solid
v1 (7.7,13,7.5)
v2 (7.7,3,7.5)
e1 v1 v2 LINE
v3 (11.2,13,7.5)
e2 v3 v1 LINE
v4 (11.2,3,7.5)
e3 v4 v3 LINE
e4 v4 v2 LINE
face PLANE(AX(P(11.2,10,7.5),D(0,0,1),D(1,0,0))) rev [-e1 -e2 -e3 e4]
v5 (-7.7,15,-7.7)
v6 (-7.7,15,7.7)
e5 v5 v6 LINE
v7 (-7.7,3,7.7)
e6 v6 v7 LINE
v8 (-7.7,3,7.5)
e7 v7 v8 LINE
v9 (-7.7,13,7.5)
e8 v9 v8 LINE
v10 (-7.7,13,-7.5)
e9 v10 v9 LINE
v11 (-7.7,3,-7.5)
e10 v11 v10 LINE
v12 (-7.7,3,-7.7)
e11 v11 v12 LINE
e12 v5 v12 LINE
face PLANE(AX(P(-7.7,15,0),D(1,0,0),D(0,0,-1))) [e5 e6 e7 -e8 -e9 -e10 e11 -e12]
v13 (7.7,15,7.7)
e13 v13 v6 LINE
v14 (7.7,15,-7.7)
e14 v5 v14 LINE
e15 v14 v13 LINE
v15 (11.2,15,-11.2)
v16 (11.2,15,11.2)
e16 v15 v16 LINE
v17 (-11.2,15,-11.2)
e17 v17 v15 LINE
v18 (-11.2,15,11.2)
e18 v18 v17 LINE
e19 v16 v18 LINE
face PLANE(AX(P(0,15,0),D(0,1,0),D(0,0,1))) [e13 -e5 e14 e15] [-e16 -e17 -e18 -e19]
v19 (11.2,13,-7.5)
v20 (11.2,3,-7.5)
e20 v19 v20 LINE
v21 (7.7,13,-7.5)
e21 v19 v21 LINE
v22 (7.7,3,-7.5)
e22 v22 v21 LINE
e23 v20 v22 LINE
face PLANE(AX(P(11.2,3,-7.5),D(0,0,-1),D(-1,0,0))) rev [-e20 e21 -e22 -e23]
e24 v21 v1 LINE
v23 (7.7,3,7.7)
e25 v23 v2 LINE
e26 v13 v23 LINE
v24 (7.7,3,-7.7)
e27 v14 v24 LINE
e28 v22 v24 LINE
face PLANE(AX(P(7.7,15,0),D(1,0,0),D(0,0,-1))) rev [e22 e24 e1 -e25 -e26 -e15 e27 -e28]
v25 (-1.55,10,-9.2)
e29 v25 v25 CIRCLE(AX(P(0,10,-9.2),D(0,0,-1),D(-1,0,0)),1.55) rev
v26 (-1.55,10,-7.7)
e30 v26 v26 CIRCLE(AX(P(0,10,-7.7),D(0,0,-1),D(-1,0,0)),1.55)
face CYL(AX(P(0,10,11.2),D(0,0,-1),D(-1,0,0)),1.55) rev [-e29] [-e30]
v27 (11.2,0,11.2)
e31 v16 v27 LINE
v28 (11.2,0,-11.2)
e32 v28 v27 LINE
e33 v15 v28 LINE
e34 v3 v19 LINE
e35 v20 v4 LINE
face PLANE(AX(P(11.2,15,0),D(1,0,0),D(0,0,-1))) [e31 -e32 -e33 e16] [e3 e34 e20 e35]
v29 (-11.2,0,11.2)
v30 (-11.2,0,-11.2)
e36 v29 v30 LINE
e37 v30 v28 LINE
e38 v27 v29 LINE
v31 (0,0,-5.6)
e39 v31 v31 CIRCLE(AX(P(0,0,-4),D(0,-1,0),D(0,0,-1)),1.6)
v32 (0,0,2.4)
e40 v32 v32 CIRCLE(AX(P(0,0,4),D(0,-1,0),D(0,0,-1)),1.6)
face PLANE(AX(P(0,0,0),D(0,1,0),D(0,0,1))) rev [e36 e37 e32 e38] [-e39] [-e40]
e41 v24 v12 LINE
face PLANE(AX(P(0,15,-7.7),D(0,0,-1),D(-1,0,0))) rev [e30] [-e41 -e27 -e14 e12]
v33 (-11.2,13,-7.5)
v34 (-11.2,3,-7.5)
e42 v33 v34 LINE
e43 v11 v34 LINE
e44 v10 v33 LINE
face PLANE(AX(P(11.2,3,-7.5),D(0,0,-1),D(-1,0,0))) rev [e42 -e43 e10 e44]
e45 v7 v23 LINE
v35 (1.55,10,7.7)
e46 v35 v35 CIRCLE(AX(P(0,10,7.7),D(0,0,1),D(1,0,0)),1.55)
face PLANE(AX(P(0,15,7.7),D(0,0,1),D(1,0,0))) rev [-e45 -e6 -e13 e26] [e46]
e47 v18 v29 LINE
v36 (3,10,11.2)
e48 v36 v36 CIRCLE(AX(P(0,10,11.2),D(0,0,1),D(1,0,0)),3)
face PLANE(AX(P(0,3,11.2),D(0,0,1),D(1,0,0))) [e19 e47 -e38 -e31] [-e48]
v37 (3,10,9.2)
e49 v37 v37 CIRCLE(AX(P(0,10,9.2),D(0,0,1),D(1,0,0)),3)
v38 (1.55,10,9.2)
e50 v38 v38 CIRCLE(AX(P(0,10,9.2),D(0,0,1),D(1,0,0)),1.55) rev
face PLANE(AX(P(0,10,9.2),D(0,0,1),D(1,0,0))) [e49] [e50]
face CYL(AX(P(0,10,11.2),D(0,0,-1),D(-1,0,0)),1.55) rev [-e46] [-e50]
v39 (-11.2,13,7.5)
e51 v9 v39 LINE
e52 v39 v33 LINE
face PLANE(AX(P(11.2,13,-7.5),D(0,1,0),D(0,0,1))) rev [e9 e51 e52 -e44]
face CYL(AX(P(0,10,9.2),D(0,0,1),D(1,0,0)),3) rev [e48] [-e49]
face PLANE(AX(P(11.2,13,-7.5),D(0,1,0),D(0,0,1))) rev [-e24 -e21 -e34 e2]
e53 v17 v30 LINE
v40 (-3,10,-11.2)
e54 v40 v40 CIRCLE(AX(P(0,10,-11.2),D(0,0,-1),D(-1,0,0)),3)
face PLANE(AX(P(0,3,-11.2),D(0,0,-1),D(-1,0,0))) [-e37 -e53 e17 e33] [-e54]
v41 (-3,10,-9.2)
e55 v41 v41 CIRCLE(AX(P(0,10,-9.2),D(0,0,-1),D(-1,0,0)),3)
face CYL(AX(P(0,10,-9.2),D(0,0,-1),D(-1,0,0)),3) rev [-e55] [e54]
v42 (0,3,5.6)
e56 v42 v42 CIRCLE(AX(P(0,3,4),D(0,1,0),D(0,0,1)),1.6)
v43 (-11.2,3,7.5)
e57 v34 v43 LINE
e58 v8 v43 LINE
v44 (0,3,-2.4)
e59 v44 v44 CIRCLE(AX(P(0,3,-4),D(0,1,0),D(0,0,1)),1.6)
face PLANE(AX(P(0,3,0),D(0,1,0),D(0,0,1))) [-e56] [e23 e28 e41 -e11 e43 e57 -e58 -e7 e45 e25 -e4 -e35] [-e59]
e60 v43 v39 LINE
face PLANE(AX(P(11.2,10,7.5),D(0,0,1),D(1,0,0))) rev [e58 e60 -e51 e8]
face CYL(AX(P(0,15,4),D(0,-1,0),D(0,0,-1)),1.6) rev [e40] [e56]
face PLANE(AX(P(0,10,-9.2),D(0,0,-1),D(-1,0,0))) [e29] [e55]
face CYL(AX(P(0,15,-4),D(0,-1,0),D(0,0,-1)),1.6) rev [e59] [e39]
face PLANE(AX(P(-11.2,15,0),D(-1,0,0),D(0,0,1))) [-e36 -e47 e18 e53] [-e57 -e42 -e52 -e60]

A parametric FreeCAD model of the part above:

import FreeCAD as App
import Part
import Sketcher

V = App.Vector

doc = App.newDocument("Part")
body = doc.addObject("PartDesign::Body", "Body")

sketch1 = body.newObject("Sketcher::SketchObject", "Sketch")
sketch1.AttachmentSupport = (doc.getObject("XZ_Plane"), [""])
sketch1.MapMode = "FlatFace"
sketch1.addGeometry(Part.LineSegment(V(-7.7, -11.2, 0), V(-7.7, 11.2, 0)), False)
sketch1.addGeometry(Part.LineSegment(V(-7.7, 11.2, 0), V(7.7, 11.2, 0)), False)
sketch1.addGeometry(Part.LineSegment(V(7.7, 11.2, 0), V(7.7, -11.2, 0)), False)
sketch1.addGeometry(Part.LineSegment(V(7.7, -11.2, 0), V(-7.7, -11.2, 0)), False)
sketch1.addConstraint(Sketcher.Constraint("Coincident", 0, 2, 1, 1))
sketch1.addConstraint(Sketcher.Constraint("Coincident", 1, 2, 2, 1))
sketch1.addConstraint(Sketcher.Constraint("Coincident", 2, 2, 3, 1))
sketch1.addConstraint(Sketcher.Constraint("Coincident", 3, 2, 0, 1))
sketch1.addConstraint(Sketcher.Constraint("Vertical", 0))
sketch1.addConstraint(Sketcher.Constraint("Horizontal", 1))
sketch1.addConstraint(Sketcher.Constraint("Vertical", 2))
sketch1.addConstraint(Sketcher.Constraint("Horizontal", 3))
sketch1.addConstraint(Sketcher.Constraint("Symmetric", 0, 2, 2, 2, -1, 1))
sketch1.addConstraint(Sketcher.Constraint("DistanceX", 1, 1, 1, 2, 15.4))
sketch1.addConstraint(Sketcher.Constraint("DistanceY", 0, 1, 0, 2, 22.4))
pad1 = body.newObject("PartDesign::Pad", "Pad")
pad1.Profile = sketch1
pad1.Length = 3
pad1.Reversed = True
body2 = doc.addObject("PartDesign::Body", "Body001")

sketch2 = body2.newObject("Sketcher::SketchObject", "Sketch001")
sketch2.AttachmentSupport = (doc.getObject("XZ_Plane001"), [""])
sketch2.MapMode = "FlatFace"
sketch2.addGeometry(Part.LineSegment(V(7.7, 11.2, 0), V(7.7, 7.7, 0)), False)
sketch2.addGeometry(Part.LineSegment(V(7.7, 7.7, 0), V(-7.7, 7.7, 0)), False)
sketch2.addGeometry(Part.LineSegment(V(-7.7, 7.7, 0), V(-7.7, 11.2, 0)), False)
sketch2.addGeometry(Part.LineSegment(V(-7.7, 11.2, 0), V(7.7, 11.2, 0)), False)
sketch2.addConstraint(Sketcher.Constraint("Coincident", 0, 2, 1, 1))
sketch2.addConstraint(Sketcher.Constraint("Coincident", 1, 2, 2, 1))
sketch2.addConstraint(Sketcher.Constraint("Coincident", 2, 2, 3, 1))
sketch2.addConstraint(Sketcher.Constraint("Coincident", 3, 2, 0, 1))
sketch2.addConstraint(Sketcher.Constraint("Vertical", 0))
sketch2.addConstraint(Sketcher.Constraint("Horizontal", 1))
sketch2.addConstraint(Sketcher.Constraint("Vertical", 2))
sketch2.addConstraint(Sketcher.Constraint("Horizontal", 3))
sketch2.addConstraint(Sketcher.Constraint("DistanceX", 1, 2, 1, 1, 15.4))
sketch2.addConstraint(Sketcher.Constraint("DistanceY", 0, 2, 0, 1, 3.5))
sketch2.addConstraint(Sketcher.Constraint("DistanceX", -1, 1, 0, 2, 7.7))
sketch2.addConstraint(Sketcher.Constraint("DistanceY", -1, 1, 0, 2, 7.7))
pad2 = body2.newObject("PartDesign::Pad", "Pad001")
pad2.Profile = sketch2
pad2.Length = 5
pad2.Reversed = True
body3 = doc.addObject("PartDesign::Body", "Body002")

sketch3 = body3.newObject("Sketcher::SketchObject", "Sketch002")
sketch3.AttachmentSupport = (doc.getObject("XZ_Plane002"), [""])
sketch3.MapMode = "FlatFace"
sketch3.addGeometry(Part.LineSegment(V(-7.7, -7.7, 0), V(7.7, -7.7, 0)), False)
sketch3.addGeometry(Part.LineSegment(V(7.7, -7.7, 0), V(7.7, -11.2, 0)), False)
sketch3.addGeometry(Part.LineSegment(V(7.7, -11.2, 0), V(-7.7, -11.2, 0)), False)
sketch3.addGeometry(Part.LineSegment(V(-7.7, -11.2, 0), V(-7.7, -7.7, 0)), False)
sketch3.addConstraint(Sketcher.Constraint("Coincident", 0, 2, 1, 1))
sketch3.addConstraint(Sketcher.Constraint("Coincident", 1, 2, 2, 1))
sketch3.addConstraint(Sketcher.Constraint("Coincident", 2, 2, 3, 1))
sketch3.addConstraint(Sketcher.Constraint("Coincident", 3, 2, 0, 1))
sketch3.addConstraint(Sketcher.Constraint("Horizontal", 0))
sketch3.addConstraint(Sketcher.Constraint("Vertical", 1))
sketch3.addConstraint(Sketcher.Constraint("Horizontal", 2))
sketch3.addConstraint(Sketcher.Constraint("Vertical", 3))
sketch3.addConstraint(Sketcher.Constraint("DistanceX", 0, 1, 0, 2, 15.4))
sketch3.addConstraint(Sketcher.Constraint("DistanceY", 1, 2, 1, 1, 3.5))
sketch3.addConstraint(Sketcher.Constraint("DistanceX", -1, 1, 0, 2, 7.7))
sketch3.addConstraint(Sketcher.Constraint("DistanceY", 0, 2, -1, 1, 7.7))
pad3 = body3.newObject("PartDesign::Pad", "Pad002")
pad3.Profile = sketch3
pad3.Length = 5
pad3.Reversed = True
doc.recompute()

boolean = body.newObject("PartDesign::Boolean", "Boolean")
boolean.Type = "Fuse"
boolean.addObjects([body2])
doc.recompute()

boolean2 = body.newObject("PartDesign::Boolean", "Boolean001")
boolean2.Type = "Fuse"
boolean2.addObjects([body3])

sketch4 = body.newObject("Sketcher::SketchObject", "Sketch003")
sketch4.AttachmentSupport = (doc.getObject("XZ_Plane"), [""])
sketch4.MapMode = "FlatFace"
sketch4.addGeometry(Part.LineSegment(V(11.2, -11.2, 0), V(-11.2, -11.2, 0)), False)
sketch4.addGeometry(Part.LineSegment(V(-11.2, -11.2, 0), V(-11.2, 11.2, 0)), False)
sketch4.addGeometry(Part.LineSegment(V(-11.2, 11.2, 0), V(11.2, 11.2, 0)), False)
sketch4.addGeometry(Part.LineSegment(V(11.2, 11.2, 0), V(11.2, -11.2, 0)), False)
sketch4.addGeometry(Part.LineSegment(V(7.7, 7.7, 0), V(-7.7, 7.7, 0)), False)
sketch4.addGeometry(Part.LineSegment(V(-7.7, 7.7, 0), V(-7.7, -7.7, 0)), False)
sketch4.addGeometry(Part.LineSegment(V(-7.7, -7.7, 0), V(7.7, -7.7, 0)), False)
sketch4.addGeometry(Part.LineSegment(V(7.7, -7.7, 0), V(7.7, 7.7, 0)), False)
sketch4.addConstraint(Sketcher.Constraint("Coincident", 0, 2, 1, 1))
sketch4.addConstraint(Sketcher.Constraint("Coincident", 1, 2, 2, 1))
sketch4.addConstraint(Sketcher.Constraint("Coincident", 2, 2, 3, 1))
sketch4.addConstraint(Sketcher.Constraint("Coincident", 3, 2, 0, 1))
sketch4.addConstraint(Sketcher.Constraint("Coincident", 4, 2, 5, 1))
sketch4.addConstraint(Sketcher.Constraint("Coincident", 5, 2, 6, 1))
sketch4.addConstraint(Sketcher.Constraint("Coincident", 6, 2, 7, 1))
sketch4.addConstraint(Sketcher.Constraint("Coincident", 7, 2, 4, 1))
sketch4.addConstraint(Sketcher.Constraint("Horizontal", 0))
sketch4.addConstraint(Sketcher.Constraint("Vertical", 1))
sketch4.addConstraint(Sketcher.Constraint("Horizontal", 2))
sketch4.addConstraint(Sketcher.Constraint("Vertical", 3))
sketch4.addConstraint(Sketcher.Constraint("Horizontal", 4))
sketch4.addConstraint(Sketcher.Constraint("Vertical", 5))
sketch4.addConstraint(Sketcher.Constraint("Horizontal", 6))
sketch4.addConstraint(Sketcher.Constraint("Vertical", 7))
sketch4.addConstraint(Sketcher.Constraint("Symmetric", 0, 2, 2, 2, -1, 1))
sketch4.addConstraint(Sketcher.Constraint("Symmetric", 4, 2, 6, 2, -1, 1))
sketch4.addConstraint(Sketcher.Constraint("Equal", 2, 1))
sketch4.addConstraint(Sketcher.Constraint("Equal", 6, 5))
sketch4.addConstraint(Sketcher.Constraint("DistanceX", 0, 2, 0, 1, 22.4))
sketch4.addConstraint(Sketcher.Constraint("DistanceX", 4, 2, 4, 1, 15.4))
pad4 = body.newObject("PartDesign::Pad", "Pad003")
pad4.Profile = sketch4
pad4.Length = 15
pad4.Reversed = True

sketch5 = body.newObject("Sketcher::SketchObject", "Sketch004")
sketch5.AttachmentSupport = (doc.getObject("XY_Plane"), [""])
sketch5.MapMode = "FlatFace"
sketch5.AttachmentOffset = App.Placement(V(0, 0, -19.6), App.Rotation())
sketch5.addGeometry(Part.Circle(V(0, 10, 0), V(0, 0, 1), 1.55), False)
sketch5.addConstraint(Sketcher.Constraint("PointOnObject", 0, 3, -2))
sketch5.addConstraint(Sketcher.Constraint("Diameter", 0, 3.1))
sketch5.addConstraint(Sketcher.Constraint("DistanceY", -1, 1, 0, 3, 10.0))
pocket1 = body.newObject("PartDesign::Pocket", "Pocket")
pocket1.Profile = sketch5
pocket1.Type = "ThroughAll"
pocket1.Reversed = True

sketch6 = body.newObject("Sketcher::SketchObject", "Sketch005")
sketch6.AttachmentSupport = (doc.getObject("XZ_Plane"), [""])
sketch6.MapMode = "FlatFace"
sketch6.addGeometry(Part.Circle(V(0, 4, 0), V(0, 0, 1), 1.6), False)
sketch6.addGeometry(Part.Circle(V(0, -4, 0), V(0, 0, 1), 1.6), False)
sketch6.addConstraint(Sketcher.Constraint("Equal", 0, 1))
sketch6.addConstraint(Sketcher.Constraint("Symmetric", 0, 3, 1, 3, -1, 1))
sketch6.addConstraint(Sketcher.Constraint("PointOnObject", 0, 3, -2))
sketch6.addConstraint(Sketcher.Constraint("Diameter", 0, 3.2))
sketch6.addConstraint(Sketcher.Constraint("DistanceY", -1, 1, 0, 3, 4.0))
pocket2 = body.newObject("PartDesign::Pocket", "Pocket001")
pocket2.Profile = sketch6
pocket2.Type = "ThroughAll"

sketch7 = body.newObject("Sketcher::SketchObject", "Sketch006")
sketch7.AttachmentSupport = (doc.getObject("XY_Plane"), [""])
sketch7.MapMode = "FlatFace"
sketch7.AttachmentOffset = App.Placement(V(0, 0, -11.2), App.Rotation())
sketch7.addGeometry(Part.Circle(V(0, 10, 0), V(0, 0, 1), 3), False)
sketch7.addConstraint(Sketcher.Constraint("PointOnObject", 0, 3, -2))
sketch7.addConstraint(Sketcher.Constraint("Diameter", 0, 6.0))
sketch7.addConstraint(Sketcher.Constraint("DistanceY", -1, 1, 0, 3, 10.0))
pocket3 = body.newObject("PartDesign::Pocket", "Pocket002")
pocket3.Profile = sketch7
pocket3.Length = 2
pocket3.Reversed = True

sketch8 = body.newObject("Sketcher::SketchObject", "Sketch007")
sketch8.AttachmentSupport = (doc.getObject("XY_Plane"), [""])
sketch8.MapMode = "FlatFace"
sketch8.AttachmentOffset = App.Placement(V(0, 0, 11.2), App.Rotation())
sketch8.addGeometry(Part.Circle(V(0, 10, 0), V(0, 0, 1), 3), False)
sketch8.addConstraint(Sketcher.Constraint("PointOnObject", 0, 3, -2))
sketch8.addConstraint(Sketcher.Constraint("Diameter", 0, 6.0))
sketch8.addConstraint(Sketcher.Constraint("DistanceY", -1, 1, 0, 3, 10.0))
pocket4 = body.newObject("PartDesign::Pocket", "Pocket003")
pocket4.Profile = sketch8
pocket4.Length = 2

sketch9 = body.newObject("Sketcher::SketchObject", "Sketch008")
sketch9.AttachmentSupport = (doc.getObject("YZ_Plane"), [""])
sketch9.MapMode = "FlatFace"
sketch9.AttachmentOffset = App.Placement(V(0, 0, -11.2), App.Rotation())
sketch9.addGeometry(Part.LineSegment(V(3, 7.5, 0), V(13, 7.5, 0)), False)
sketch9.addGeometry(Part.LineSegment(V(13, 7.5, 0), V(13, -7.5, 0)), False)
sketch9.addGeometry(Part.LineSegment(V(13, -7.5, 0), V(3, -7.5, 0)), False)
sketch9.addGeometry(Part.LineSegment(V(3, -7.5, 0), V(3, 7.5, 0)), False)
sketch9.addConstraint(Sketcher.Constraint("Coincident", 0, 2, 1, 1))
sketch9.addConstraint(Sketcher.Constraint("Coincident", 1, 2, 2, 1))
sketch9.addConstraint(Sketcher.Constraint("Coincident", 2, 2, 3, 1))
sketch9.addConstraint(Sketcher.Constraint("Coincident", 3, 2, 0, 1))
sketch9.addConstraint(Sketcher.Constraint("Horizontal", 0))
sketch9.addConstraint(Sketcher.Constraint("Vertical", 1))
sketch9.addConstraint(Sketcher.Constraint("Horizontal", 2))
sketch9.addConstraint(Sketcher.Constraint("Vertical", 3))
sketch9.addConstraint(Sketcher.Constraint("DistanceX", 0, 1, 0, 2, 10.0))
sketch9.addConstraint(Sketcher.Constraint("DistanceY", 1, 2, 1, 1, 15.0))
sketch9.addConstraint(Sketcher.Constraint("DistanceX", -1, 1, 0, 2, 13.0))
sketch9.addConstraint(Sketcher.Constraint("DistanceY", -1, 1, 0, 2, 7.5))
pocket5 = body.newObject("PartDesign::Pocket", "Pocket004")
pocket5.Profile = sketch9
pocket5.Type = "ThroughAll"
pocket5.Reversed = True

doc.recompute()
